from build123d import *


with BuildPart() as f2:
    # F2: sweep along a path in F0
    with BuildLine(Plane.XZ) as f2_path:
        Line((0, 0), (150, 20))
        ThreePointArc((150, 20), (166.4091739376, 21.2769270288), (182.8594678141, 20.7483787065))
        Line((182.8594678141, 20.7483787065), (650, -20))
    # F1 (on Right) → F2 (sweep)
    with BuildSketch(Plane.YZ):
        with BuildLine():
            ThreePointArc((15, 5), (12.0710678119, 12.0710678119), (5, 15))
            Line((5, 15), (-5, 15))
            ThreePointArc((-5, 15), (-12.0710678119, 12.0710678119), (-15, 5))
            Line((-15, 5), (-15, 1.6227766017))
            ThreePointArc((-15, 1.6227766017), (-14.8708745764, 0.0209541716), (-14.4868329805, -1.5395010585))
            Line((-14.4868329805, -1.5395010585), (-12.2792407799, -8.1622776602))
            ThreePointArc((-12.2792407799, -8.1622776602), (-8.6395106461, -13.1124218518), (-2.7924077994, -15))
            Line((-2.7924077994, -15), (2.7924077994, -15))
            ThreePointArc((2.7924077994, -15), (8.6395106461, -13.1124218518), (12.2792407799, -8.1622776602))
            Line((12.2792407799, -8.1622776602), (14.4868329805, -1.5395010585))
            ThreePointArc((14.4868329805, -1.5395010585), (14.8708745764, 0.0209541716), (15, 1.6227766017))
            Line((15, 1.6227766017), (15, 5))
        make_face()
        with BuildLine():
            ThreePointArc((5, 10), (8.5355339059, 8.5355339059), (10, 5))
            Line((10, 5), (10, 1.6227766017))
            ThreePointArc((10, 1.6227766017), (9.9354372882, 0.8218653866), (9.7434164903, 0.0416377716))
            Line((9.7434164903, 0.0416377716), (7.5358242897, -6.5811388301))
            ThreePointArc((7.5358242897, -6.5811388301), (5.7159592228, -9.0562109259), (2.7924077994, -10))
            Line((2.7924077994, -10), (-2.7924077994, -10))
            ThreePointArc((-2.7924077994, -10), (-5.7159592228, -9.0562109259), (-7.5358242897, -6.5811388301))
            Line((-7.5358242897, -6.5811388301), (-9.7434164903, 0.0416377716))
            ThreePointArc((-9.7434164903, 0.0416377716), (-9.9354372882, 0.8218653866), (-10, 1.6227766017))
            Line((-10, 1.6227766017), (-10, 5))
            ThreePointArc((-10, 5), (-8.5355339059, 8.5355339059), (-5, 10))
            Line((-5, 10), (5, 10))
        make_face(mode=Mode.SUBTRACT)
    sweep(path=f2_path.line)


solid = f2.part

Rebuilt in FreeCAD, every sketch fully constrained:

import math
import FreeCAD as App
import Part
import Sketcher

doc = App.newDocument("Part")
body = doc.addObject("PartDesign::Body", "Body")

sketch1 = body.newObject("Sketcher::SketchObject", "Sketch")
sketch1.AttachmentSupport = (doc.getObject("YZ_Plane"), [""])
sketch1.MapMode = "FlatFace"
sketch1.addGeometry([
    Part.ArcOfCircle(Part.Circle(App.Vector(5, 5, 0), App.Vector(0, 0, 1), 10), math.radians(0), math.radians(90)),
    Part.LineSegment(App.Vector(5, 15, 0), App.Vector(-5, 15, 0)),
    Part.ArcOfCircle(Part.Circle(App.Vector(-5, 5, 0), App.Vector(0, 0, 1), 10), math.radians(90), math.radians(180)),
    Part.LineSegment(App.Vector(-15, 5, 0), App.Vector(-15, 1.6, 0)),
    Part.ArcOfCircle(Part.Circle(App.Vector(-5, 1.6, 0), App.Vector(0, 0, 1), 10), math.radians(180), math.radians(198.43)),
    Part.LineSegment(App.Vector(-14.5, -1.5, 0), App.Vector(-12.3, -8.2, 0)),
    Part.ArcOfCircle(Part.Circle(App.Vector(-2.8, -5, 0), App.Vector(0, 0, 1), 10), math.radians(-162), math.radians(-90)),
    Part.LineSegment(App.Vector(-2.8, -15, 0), App.Vector(2.8, -15, 0)),
    Part.ArcOfCircle(Part.Circle(App.Vector(2.8, -5, 0), App.Vector(0, 0, 1), 10), math.radians(-90), math.radians(-18)),
    Part.LineSegment(App.Vector(12.3, -8.2, 0), App.Vector(14.5, -1.5, 0)),
    Part.ArcOfCircle(Part.Circle(App.Vector(5, 1.6, 0), App.Vector(0, 0, 1), 10), math.radians(-18.43), math.radians(0)),
    Part.LineSegment(App.Vector(15, 1.6, 0), App.Vector(15, 5, 0)),
    Part.LineSegment(App.Vector(-5, 10, 0), App.Vector(5, 10, 0)),
    Part.ArcOfCircle(Part.Circle(App.Vector(5, 5, 0), App.Vector(0, 0, 1), 5), math.radians(0), math.radians(90)),
    Part.LineSegment(App.Vector(10, 5, 0), App.Vector(10, 1.6, 0)),
    Part.ArcOfCircle(Part.Circle(App.Vector(5, 1.6, 0), App.Vector(0, 0, 1), 5), math.radians(-18.43), math.radians(0)),
    Part.LineSegment(App.Vector(9.7, 0, 0), App.Vector(7.5, -6.6, 0)),
    Part.ArcOfCircle(Part.Circle(App.Vector(2.8, -5, 0), App.Vector(0, 0, 1), 5), math.radians(-90), math.radians(-18)),
    Part.LineSegment(App.Vector(2.8, -10, 0), App.Vector(-2.8, -10, 0)),
    Part.ArcOfCircle(Part.Circle(App.Vector(-2.8, -5, 0), App.Vector(0, 0, 1), 5), math.radians(-162), math.radians(-90)),
    Part.LineSegment(App.Vector(-7.5, -6.6, 0), App.Vector(-9.7, 0, 0)),
    Part.ArcOfCircle(Part.Circle(App.Vector(-5, 1.6, 0), App.Vector(0, 0, 1), 5), math.radians(180), math.radians(198.43)),
    Part.LineSegment(App.Vector(-10, 1.6, 0), App.Vector(-10, 5, 0)),
    Part.ArcOfCircle(Part.Circle(App.Vector(-5, 5, 0), App.Vector(0, 0, 1), 5), math.radians(90), math.radians(180)),
], False)
sketch1.addConstraint([
    Sketcher.Constraint("Tangent", 0, 2, 1, 1),
    Sketcher.Constraint("Tangent", 1, 2, 2, 1),
    Sketcher.Constraint("Tangent", 2, 2, 3, 1),
    Sketcher.Constraint("Tangent", 3, 2, 4, 1),
    Sketcher.Constraint("Tangent", 4, 2, 5, 1),
    Sketcher.Constraint("Tangent", 5, 2, 6, 1),
    Sketcher.Constraint("Tangent", 6, 2, 7, 1),
    Sketcher.Constraint("Tangent", 7, 2, 8, 1),
    Sketcher.Constraint("Tangent", 8, 2, 9, 1),
    Sketcher.Constraint("Tangent", 9, 2, 10, 1),
    Sketcher.Constraint("Tangent", 10, 2, 11, 1),
    Sketcher.Constraint("Tangent", 11, 2, 0, 1),
    Sketcher.Constraint("Tangent", 12, 2, 13, 2),
    Sketcher.Constraint("Tangent", 13, 1, 14, 1),
    Sketcher.Constraint("Tangent", 14, 2, 15, 2),
    Sketcher.Constraint("Tangent", 15, 1, 16, 1),
    Sketcher.Constraint("Tangent", 16, 2, 17, 2),
    Sketcher.Constraint("Tangent", 17, 1, 18, 1),
    Sketcher.Constraint("Tangent", 18, 2, 19, 2),
    Sketcher.Constraint("Tangent", 19, 1, 20, 1),
    Sketcher.Constraint("Tangent", 20, 2, 21, 2),
    Sketcher.Constraint("Tangent", 21, 1, 22, 1),
    Sketcher.Constraint("Tangent", 22, 2, 23, 2),
    Sketcher.Constraint("Tangent", 23, 1, 12, 1),
    Sketcher.Constraint("Horizontal", 1),
    Sketcher.Constraint("Vertical", 3),
    Sketcher.Constraint("Horizontal", 7),
    Sketcher.Constraint("Vertical", 11),
    Sketcher.Constraint("Horizontal", 12),
    Sketcher.Constraint("Vertical", 14),
    Sketcher.Constraint("Horizontal", 18),
    Sketcher.Constraint("Vertical", 22),
    Sketcher.Constraint("Coincident", 13, 3, 0, 3),
    Sketcher.Constraint("Coincident", 15, 3, 10, 3),
    Sketcher.Constraint("Coincident", 17, 3, 8, 3),
    Sketcher.Constraint("Coincident", 19, 3, 6, 3),
    Sketcher.Constraint("Coincident", 21, 3, 4, 3),
    Sketcher.Constraint("Coincident", 23, 3, 2, 3),
    Sketcher.Constraint("Equal", 0, 2),
    Sketcher.Constraint("Equal", 2, 4),
    Sketcher.Constraint("Equal", 4, 6),
    Sketcher.Constraint("Equal", 6, 8),
    Sketcher.Constraint("Equal", 8, 10),
    Sketcher.Constraint("Equal", 15, 17),
    Sketcher.Constraint("Symmetric", 4, 3, 10, 3, -2),
    Sketcher.Constraint("Horizontal", 5, 2, 8, 2),
    Sketcher.Constraint("Radius", 0, 10.0),
    Sketcher.Constraint("Radius", 13, 5.0),
    Sketcher.Constraint("DistanceX", 1, 2, 1, 1, 10.0),
    Sketcher.Constraint("DistanceY", -1, 1, 0, 3, 5.0),
    Sketcher.Constraint("DistanceY", 6, 3, -1, 1, 5.0),
    Sketcher.Constraint("DistanceY", 4, 2, -1, 1, 1.539501),
    Sketcher.Constraint("Distance", 5, 6.981019),
])

sketch2 = body.newObject("Sketcher::SketchObject", "Sketch001")
sketch2.AttachmentSupport = (doc.getObject("XZ_Plane"), [""])
sketch2.MapMode = "FlatFace"
sketch2.addGeometry([
    Part.LineSegment(App.Vector(0, 0, 0), App.Vector(150, 20, 0)),
    Part.ArcOfCircle(Part.Circle(App.Vector(170, -129, 0), App.Vector(0, 0, 1), 150), math.radians(85.01), math.radians(97.59)),
    Part.LineSegment(App.Vector(183, 21, 0), App.Vector(650, -20, 0)),
], False)
sketch2.addConstraint([
    Sketcher.Constraint("Tangent", 0, 2, 1, 2),
    Sketcher.Constraint("Tangent", 1, 1, 2, 1),
    Sketcher.Constraint("Coincident", 0, 1, -1, 1),
    Sketcher.Constraint("Radius", 1, 150.0),
    Sketcher.Constraint("DistanceX", -1, 1, 0, 2, 150.0),
    Sketcher.Constraint("DistanceY", -1, 1, 0, 2, 20.0),
    Sketcher.Constraint("DistanceX", -1, 1, 2, 2, 650.0),
    Sketcher.Constraint("DistanceY", 2, 2, -1, 1, 20.0),
])
doc.recompute()

additivepipe = body.newObject("PartDesign::AdditivePipe", "AdditivePipe")
additivepipe.Profile = sketch1
additivepipe.Spine = (sketch2, ["Edge1", "Edge2", "Edge3"])

doc.recompute()
